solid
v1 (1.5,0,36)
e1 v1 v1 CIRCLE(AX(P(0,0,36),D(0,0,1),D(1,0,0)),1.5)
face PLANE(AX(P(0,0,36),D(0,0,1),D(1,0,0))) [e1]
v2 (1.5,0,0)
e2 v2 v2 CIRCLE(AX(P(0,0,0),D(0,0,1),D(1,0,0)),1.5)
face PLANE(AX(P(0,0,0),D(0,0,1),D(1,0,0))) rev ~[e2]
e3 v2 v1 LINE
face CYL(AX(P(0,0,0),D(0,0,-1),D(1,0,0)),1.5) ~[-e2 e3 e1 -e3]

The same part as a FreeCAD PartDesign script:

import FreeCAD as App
import Part
import Sketcher
from FreeCAD import Vector
Q = App.Units.Quantity

doc = App.newDocument("Part")
body = doc.addObject("PartDesign::Body", "Body")

sketch1 = body.newObject("Sketcher::SketchObject", "Sketch")
sketch1.AttachmentSupport = (doc.getObject("XY_Plane"), [""])
sketch1.MapMode = "FlatFace"
sketch1.addGeometry(Part.Circle(Vector(0, 0, 0), Vector(0, 0, 1), 1.5), False)
sketch1.addConstraint([
    Sketcher.Constraint("Coincident", 0, 3, -1, 1),
    Sketcher.Constraint("Diameter", 0, Q("3 mm")),
])
pad1 = body.newObject("PartDesign::Pad", "Pad")
pad1.Profile = sketch1
pad1.Length = 36

doc.recompute()
